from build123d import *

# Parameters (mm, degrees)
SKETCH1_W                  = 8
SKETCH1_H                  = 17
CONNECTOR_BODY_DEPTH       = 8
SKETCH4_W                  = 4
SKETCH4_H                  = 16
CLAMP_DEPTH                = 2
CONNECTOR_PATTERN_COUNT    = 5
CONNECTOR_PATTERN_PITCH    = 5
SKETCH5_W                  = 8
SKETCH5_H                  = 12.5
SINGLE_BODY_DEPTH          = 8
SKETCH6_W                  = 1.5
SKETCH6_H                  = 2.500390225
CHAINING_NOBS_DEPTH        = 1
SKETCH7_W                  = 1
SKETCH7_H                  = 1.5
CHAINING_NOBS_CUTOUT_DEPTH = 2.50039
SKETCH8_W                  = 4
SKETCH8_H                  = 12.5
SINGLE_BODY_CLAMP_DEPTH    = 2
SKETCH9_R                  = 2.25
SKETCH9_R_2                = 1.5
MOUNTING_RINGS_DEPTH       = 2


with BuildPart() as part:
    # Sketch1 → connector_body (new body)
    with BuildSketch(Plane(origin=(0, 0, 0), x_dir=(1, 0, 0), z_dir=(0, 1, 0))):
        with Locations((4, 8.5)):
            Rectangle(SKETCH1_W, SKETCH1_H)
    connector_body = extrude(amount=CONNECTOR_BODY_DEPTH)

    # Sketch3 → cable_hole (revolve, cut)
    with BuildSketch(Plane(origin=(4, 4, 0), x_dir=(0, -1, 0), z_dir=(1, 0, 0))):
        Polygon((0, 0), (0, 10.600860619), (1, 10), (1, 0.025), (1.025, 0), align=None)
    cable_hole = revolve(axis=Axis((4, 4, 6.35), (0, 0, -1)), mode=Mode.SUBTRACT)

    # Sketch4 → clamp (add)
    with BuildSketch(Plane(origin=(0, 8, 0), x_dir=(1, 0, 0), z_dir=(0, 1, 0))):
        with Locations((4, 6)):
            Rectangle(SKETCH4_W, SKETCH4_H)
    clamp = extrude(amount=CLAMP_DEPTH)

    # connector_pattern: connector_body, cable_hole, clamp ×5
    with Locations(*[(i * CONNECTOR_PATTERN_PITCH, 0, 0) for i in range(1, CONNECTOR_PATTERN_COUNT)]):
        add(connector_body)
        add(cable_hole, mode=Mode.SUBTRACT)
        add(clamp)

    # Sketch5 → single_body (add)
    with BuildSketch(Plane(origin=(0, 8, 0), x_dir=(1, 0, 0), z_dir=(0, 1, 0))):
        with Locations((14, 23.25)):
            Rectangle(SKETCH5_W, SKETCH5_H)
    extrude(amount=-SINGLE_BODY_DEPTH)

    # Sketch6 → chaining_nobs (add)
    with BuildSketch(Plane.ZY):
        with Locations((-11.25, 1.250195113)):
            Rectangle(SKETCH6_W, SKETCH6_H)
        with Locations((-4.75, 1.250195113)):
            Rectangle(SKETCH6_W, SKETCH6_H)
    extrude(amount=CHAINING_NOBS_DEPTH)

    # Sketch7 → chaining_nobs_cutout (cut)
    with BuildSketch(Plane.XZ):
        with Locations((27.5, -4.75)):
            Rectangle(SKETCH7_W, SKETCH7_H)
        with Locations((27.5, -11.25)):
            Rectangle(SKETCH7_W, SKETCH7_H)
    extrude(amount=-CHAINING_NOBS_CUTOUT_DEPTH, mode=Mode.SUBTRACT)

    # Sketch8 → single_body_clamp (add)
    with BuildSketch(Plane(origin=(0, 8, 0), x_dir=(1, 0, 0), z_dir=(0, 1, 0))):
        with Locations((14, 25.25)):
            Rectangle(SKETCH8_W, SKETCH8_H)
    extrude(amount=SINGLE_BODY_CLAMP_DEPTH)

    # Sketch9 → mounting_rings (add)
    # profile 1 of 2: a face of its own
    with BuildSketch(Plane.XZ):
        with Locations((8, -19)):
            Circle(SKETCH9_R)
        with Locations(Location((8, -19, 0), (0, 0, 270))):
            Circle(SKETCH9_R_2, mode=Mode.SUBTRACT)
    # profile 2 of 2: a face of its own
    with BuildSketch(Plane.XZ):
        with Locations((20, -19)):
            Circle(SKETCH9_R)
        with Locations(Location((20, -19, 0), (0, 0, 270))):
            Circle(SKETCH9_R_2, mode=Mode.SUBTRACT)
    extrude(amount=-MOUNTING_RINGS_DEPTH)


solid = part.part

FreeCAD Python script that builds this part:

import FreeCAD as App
import Part
import Sketcher

V = App.Vector
Q = App.Units.Quantity


def add_polygon(sketch, points):
    """Adds a closed chain of lines whose ends are joined by coincident constraints."""
    first, n = sketch.GeometryCount, len(points)
    for a, b in zip(points, points[1:] + points[:1]):
        sketch.addGeometry(Part.LineSegment(App.Vector(*a, 0), App.Vector(*b, 0)), False)
    for i in range(n):
        sketch.addConstraint(Sketcher.Constraint("Coincident", first + i, 2, first + (i + 1) % n, 1))

doc = App.newDocument("Part")
body = doc.addObject("PartDesign::Body", "Body")

# Sketch on XZ plane
sketch1 = doc.addObject("Sketcher::SketchObject", "Sketch")
body.addObject(sketch1)
sketch1.AttachmentSupport = (doc.XZ_Plane, [""])
sketch1.MapMode = "FlatFace"
add_polygon(sketch1, [(0, -17), (0, 0), (8, 0), (8, -17)])  # lines 0-3
sketch1.addConstraint([
    Sketcher.Constraint("Vertical", 0),
    Sketcher.Constraint("Horizontal", 1),
    Sketcher.Constraint("Vertical", 2),
    Sketcher.Constraint("Horizontal", 3),
    Sketcher.Constraint("Coincident", 0, 2, -1, 1),
    Sketcher.Constraint("DistanceX", 1, 1, 1, 2, 8.0),
    Sketcher.Constraint("DistanceY", 0, 1, 0, 2, 17.0),
])
pad1 = doc.addObject("PartDesign::Pad", "Pad")
body.addObject(pad1)
pad1.Profile = sketch1
pad1.Length = 8
pad1.Reversed = True

# Sketch on YZ plane
sketch2 = doc.addObject("Sketcher::SketchObject", "Sketch001")
body.addObject(sketch2)
sketch2.AttachmentSupport = (doc.YZ_Plane, [""])
sketch2.MapMode = "FlatFace"
sketch2.AttachmentOffset = App.Placement(V(0, 0, 4), App.Rotation())
add_polygon(sketch2, [(4, -10.601), (4, 0), (2.975, 0), (3, -0.025), (3, -10)])  # lines 0-4
sketch2.addGeometry(Part.LineSegment(V(4, 0, 0), V(4, -10.601, 0)), True)  # axis
sketch2.addConstraint([
    Sketcher.Constraint("Vertical", 0),
    Sketcher.Constraint("Horizontal", 1),
    Sketcher.Constraint("Vertical", 3),
    Sketcher.Constraint("Vertical", 5),
    Sketcher.Constraint("Coincident", 5, 1, 0, 2),
    Sketcher.Constraint("PointOnObject", 0, 2, -1),
    Sketcher.Constraint("Equal", 0, 5),
    Sketcher.Constraint("Angle", 2, Q("-45 deg")),
    Sketcher.Constraint("Angle", 4, Q("-31 deg")),
    Sketcher.Constraint("DistanceX", -1, 1, 0, 2, 4.0),
    Sketcher.Constraint("DistanceX", -1, 1, 2, 2, 3.0),
    Sketcher.Constraint("DistanceY", 3, 2, -1, 1, 10.0),
    Sketcher.Constraint("DistanceX", 1, 2, 1, 1, 1.025),
])
groove = doc.addObject("PartDesign::Groove", "Groove")
body.addObject(groove)
groove.Profile = sketch2
groove.ReferenceAxis = (sketch2, ["Axis0"])
groove.Angle = 360

# Sketch on XZ plane
sketch3 = doc.addObject("Sketcher::SketchObject", "Sketch002")
body.addObject(sketch3)
sketch3.AttachmentSupport = (doc.XZ_Plane, [""])
sketch3.MapMode = "FlatFace"
sketch3.AttachmentOffset = App.Placement(V(0, 0, -8), App.Rotation())
add_polygon(sketch3, [(2, -14), (2, 2), (6, 2), (6, -14)])  # lines 0-3
sketch3.addConstraint([
    Sketcher.Constraint("Vertical", 0),
    Sketcher.Constraint("Horizontal", 1),
    Sketcher.Constraint("Vertical", 2),
    Sketcher.Constraint("Horizontal", 3),
    Sketcher.Constraint("DistanceX", 1, 1, 1, 2, 4.0),
    Sketcher.Constraint("DistanceY", 0, 1, 0, 2, 16.0),
    Sketcher.Constraint("DistanceX", -1, 1, 0, 2, 2.0),
    Sketcher.Constraint("DistanceY", -1, 1, 0, 2, 2.0),
])
pad2 = doc.addObject("PartDesign::Pad", "Pad001")
body.addObject(pad2)
pad2.Profile = sketch3
pad2.Length = 2
pad2.Reversed = True
doc.recompute()

linearpattern = doc.addObject("PartDesign::LinearPattern", "LinearPattern")
body.addObject(linearpattern)
linearpattern.Originals = [pad1, groove, pad2]
linearpattern.Direction = (doc.X_Axis, [""])
linearpattern.Mode = "offset"
linearpattern.Offset = 5
linearpattern.Occurrences = 5
body.Tip = linearpattern

# Sketch on XZ plane
sketch4 = doc.addObject("Sketcher::SketchObject", "Sketch003")
body.addObject(sketch4)
sketch4.AttachmentSupport = (doc.XZ_Plane, [""])
sketch4.MapMode = "FlatFace"
sketch4.AttachmentOffset = App.Placement(V(0, 0, -8), App.Rotation())
add_polygon(sketch4, [(10, -30), (10, -17), (18, -17), (18, -30)])  # lines 0-3
sketch4.addConstraint([
    Sketcher.Constraint("Vertical", 0),
    Sketcher.Constraint("Horizontal", 1),
    Sketcher.Constraint("Vertical", 2),
    Sketcher.Constraint("Horizontal", 3),
    Sketcher.Constraint("DistanceX", 1, 1, 1, 2, 8.0),
    Sketcher.Constraint("DistanceY", 0, 1, 0, 2, 12.5),
    Sketcher.Constraint("DistanceX", -1, 1, 0, 2, 10.0),
    Sketcher.Constraint("DistanceY", 0, 2, -1, 1, 17.0),
])
pad3 = doc.addObject("PartDesign::Pad", "Pad002")
body.addObject(pad3)
pad3.Profile = sketch4
pad3.Length = 8

# Sketch on YZ plane
sketch5 = doc.addObject("Sketcher::SketchObject", "Sketch004")
body.addObject(sketch5)
sketch5.AttachmentSupport = (doc.YZ_Plane, [""])
sketch5.MapMode = "FlatFace"
add_polygon(sketch5, [(2.5, -12), (0, -12), (0, -10.5), (2.5, -10.5)])  # lines 0-3
add_polygon(sketch5, [(2.5, -5.5), (0, -5.5), (0, -4), (2.5, -4)])  # lines 4-7
sketch5.addConstraint([
    Sketcher.Constraint("Horizontal", 0),
    Sketcher.Constraint("Vertical", 1),
    Sketcher.Constraint("Horizontal", 2),
    Sketcher.Constraint("Vertical", 3),
    Sketcher.Constraint("Horizontal", 4),
    Sketcher.Constraint("Vertical", 5),
    Sketcher.Constraint("Horizontal", 6),
    Sketcher.Constraint("Vertical", 7),
    Sketcher.Constraint("PointOnObject", 0, 2, -2),
    Sketcher.Constraint("PointOnObject", 4, 2, -2),
    Sketcher.Constraint("Vertical", 3, 2, 6, 2),
    Sketcher.Constraint("Equal", 3, 5),
    Sketcher.Constraint("DistanceY", 1, 1, 1, 2, 1.5),
    Sketcher.Constraint("DistanceY", 0, 2, -1, 1, 12.0),
    Sketcher.Constraint("DistanceY", 5, 2, -1, 1, 4.0),
    Sketcher.Constraint("DistanceX", 0, 2, 0, 1, 2.50039),
])
pad4 = doc.addObject("PartDesign::Pad", "Pad003")
body.addObject(pad4)
pad4.Profile = sketch5
pad4.Length = 1
pad4.Reversed = True

# Sketch on XZ plane
sketch6 = doc.addObject("Sketcher::SketchObject", "Sketch005")
body.addObject(sketch6)
sketch6.AttachmentSupport = (doc.XZ_Plane, [""])
sketch6.MapMode = "FlatFace"
add_polygon(sketch6, [(27, -4), (27, -5.5), (28, -5.5), (28, -4)])  # lines 0-3
add_polygon(sketch6, [(27, -10.5), (27, -12), (28, -12), (28, -10.5)])  # lines 4-7
sketch6.addConstraint([
    Sketcher.Constraint("Vertical", 0),
    Sketcher.Constraint("Horizontal", 1),
    Sketcher.Constraint("Vertical", 2),
    Sketcher.Constraint("Horizontal", 3),
    Sketcher.Constraint("Vertical", 4),
    Sketcher.Constraint("Horizontal", 5),
    Sketcher.Constraint("Vertical", 6),
    Sketcher.Constraint("Horizontal", 7),
    Sketcher.Constraint("Vertical", 3, 2, 4, 2),
    Sketcher.Constraint("Vertical", 2, 2, 5, 2),
    Sketcher.Constraint("Equal", 2, 4),
    Sketcher.Constraint("DistanceX", 1, 1, 1, 2, 1.0),
    Sketcher.Constraint("DistanceY", 0, 2, 0, 1, 1.5),
    Sketcher.Constraint("DistanceX", -1, 1, 0, 2, 27.0),
    Sketcher.Constraint("DistanceY", 2, 2, -1, 1, 4.0),
    Sketcher.Constraint("DistanceY", 4, 2, -1, 1, 12.0),
])
pocket1 = doc.addObject("PartDesign::Pocket", "Pocket")
body.addObject(pocket1)
pocket1.Profile = sketch6
pocket1.Length = 2.50039

# Sketch on XZ plane
sketch7 = doc.addObject("Sketcher::SketchObject", "Sketch006")
body.addObject(sketch7)
sketch7.AttachmentSupport = (doc.XZ_Plane, [""])
sketch7.MapMode = "FlatFace"
sketch7.AttachmentOffset = App.Placement(V(0, 0, -8), App.Rotation())
add_polygon(sketch7, [(12, -31.5), (12, -19), (16, -19), (16, -31.5)])  # lines 0-3
sketch7.addConstraint([
    Sketcher.Constraint("Vertical", 0),
    Sketcher.Constraint("Horizontal", 1),
    Sketcher.Constraint("Vertical", 2),
    Sketcher.Constraint("Horizontal", 3),
    Sketcher.Constraint("DistanceX", 1, 1, 1, 2, 4.0),
    Sketcher.Constraint("DistanceY", 0, 1, 0, 2, 12.5),
    Sketcher.Constraint("DistanceX", -1, 1, 0, 2, 12.0),
    Sketcher.Constraint("DistanceY", 0, 2, -1, 1, 19.0),
])
pad5 = doc.addObject("PartDesign::Pad", "Pad004")
body.addObject(pad5)
pad5.Profile = sketch7
pad5.Length = 2
pad5.Reversed = True

# Sketch on XZ plane
sketch8 = doc.addObject("Sketcher::SketchObject", "Sketch007")
body.addObject(sketch8)
sketch8.AttachmentSupport = (doc.XZ_Plane, [""])
sketch8.MapMode = "FlatFace"
sketch8.addGeometry([
    Part.Circle(V(8, -19, 0), V(0, 0, 1), 2.2),
    Part.Circle(V(8, -19, 0), V(0, 0, 1), 1.5),
    Part.Circle(V(20, -19, 0), V(0, 0, 1), 2.2),
    Part.Circle(V(20, -19, 0), V(0, 0, 1), 1.5),
], False)
sketch8.addConstraint([
    Sketcher.Constraint("Coincident", 1, 3, 0, 3),
    Sketcher.Constraint("Coincident", 3, 3, 2, 3),
    Sketcher.Constraint("Equal", 0, 2),
    Sketcher.Constraint("Equal", 1, 3),
    Sketcher.Constraint("Horizontal", 1, 3, 2, 3),
    Sketcher.Constraint("Diameter", 1, 3.0),
    Sketcher.Constraint("Diameter", 0, 4.5),
    Sketcher.Constraint("DistanceX", -1, 1, 0, 3, 8.0),
    Sketcher.Constraint("DistanceY", 0, 3, -1, 1, 19.0),
    Sketcher.Constraint("DistanceX", -1, 1, 2, 3, 20.0),
])
pad6 = doc.addObject("PartDesign::Pad", "Pad005")
body.addObject(pad6)
pad6.Profile = sketch8
pad6.Length = 2
pad6.Reversed = True

doc.recompute()
